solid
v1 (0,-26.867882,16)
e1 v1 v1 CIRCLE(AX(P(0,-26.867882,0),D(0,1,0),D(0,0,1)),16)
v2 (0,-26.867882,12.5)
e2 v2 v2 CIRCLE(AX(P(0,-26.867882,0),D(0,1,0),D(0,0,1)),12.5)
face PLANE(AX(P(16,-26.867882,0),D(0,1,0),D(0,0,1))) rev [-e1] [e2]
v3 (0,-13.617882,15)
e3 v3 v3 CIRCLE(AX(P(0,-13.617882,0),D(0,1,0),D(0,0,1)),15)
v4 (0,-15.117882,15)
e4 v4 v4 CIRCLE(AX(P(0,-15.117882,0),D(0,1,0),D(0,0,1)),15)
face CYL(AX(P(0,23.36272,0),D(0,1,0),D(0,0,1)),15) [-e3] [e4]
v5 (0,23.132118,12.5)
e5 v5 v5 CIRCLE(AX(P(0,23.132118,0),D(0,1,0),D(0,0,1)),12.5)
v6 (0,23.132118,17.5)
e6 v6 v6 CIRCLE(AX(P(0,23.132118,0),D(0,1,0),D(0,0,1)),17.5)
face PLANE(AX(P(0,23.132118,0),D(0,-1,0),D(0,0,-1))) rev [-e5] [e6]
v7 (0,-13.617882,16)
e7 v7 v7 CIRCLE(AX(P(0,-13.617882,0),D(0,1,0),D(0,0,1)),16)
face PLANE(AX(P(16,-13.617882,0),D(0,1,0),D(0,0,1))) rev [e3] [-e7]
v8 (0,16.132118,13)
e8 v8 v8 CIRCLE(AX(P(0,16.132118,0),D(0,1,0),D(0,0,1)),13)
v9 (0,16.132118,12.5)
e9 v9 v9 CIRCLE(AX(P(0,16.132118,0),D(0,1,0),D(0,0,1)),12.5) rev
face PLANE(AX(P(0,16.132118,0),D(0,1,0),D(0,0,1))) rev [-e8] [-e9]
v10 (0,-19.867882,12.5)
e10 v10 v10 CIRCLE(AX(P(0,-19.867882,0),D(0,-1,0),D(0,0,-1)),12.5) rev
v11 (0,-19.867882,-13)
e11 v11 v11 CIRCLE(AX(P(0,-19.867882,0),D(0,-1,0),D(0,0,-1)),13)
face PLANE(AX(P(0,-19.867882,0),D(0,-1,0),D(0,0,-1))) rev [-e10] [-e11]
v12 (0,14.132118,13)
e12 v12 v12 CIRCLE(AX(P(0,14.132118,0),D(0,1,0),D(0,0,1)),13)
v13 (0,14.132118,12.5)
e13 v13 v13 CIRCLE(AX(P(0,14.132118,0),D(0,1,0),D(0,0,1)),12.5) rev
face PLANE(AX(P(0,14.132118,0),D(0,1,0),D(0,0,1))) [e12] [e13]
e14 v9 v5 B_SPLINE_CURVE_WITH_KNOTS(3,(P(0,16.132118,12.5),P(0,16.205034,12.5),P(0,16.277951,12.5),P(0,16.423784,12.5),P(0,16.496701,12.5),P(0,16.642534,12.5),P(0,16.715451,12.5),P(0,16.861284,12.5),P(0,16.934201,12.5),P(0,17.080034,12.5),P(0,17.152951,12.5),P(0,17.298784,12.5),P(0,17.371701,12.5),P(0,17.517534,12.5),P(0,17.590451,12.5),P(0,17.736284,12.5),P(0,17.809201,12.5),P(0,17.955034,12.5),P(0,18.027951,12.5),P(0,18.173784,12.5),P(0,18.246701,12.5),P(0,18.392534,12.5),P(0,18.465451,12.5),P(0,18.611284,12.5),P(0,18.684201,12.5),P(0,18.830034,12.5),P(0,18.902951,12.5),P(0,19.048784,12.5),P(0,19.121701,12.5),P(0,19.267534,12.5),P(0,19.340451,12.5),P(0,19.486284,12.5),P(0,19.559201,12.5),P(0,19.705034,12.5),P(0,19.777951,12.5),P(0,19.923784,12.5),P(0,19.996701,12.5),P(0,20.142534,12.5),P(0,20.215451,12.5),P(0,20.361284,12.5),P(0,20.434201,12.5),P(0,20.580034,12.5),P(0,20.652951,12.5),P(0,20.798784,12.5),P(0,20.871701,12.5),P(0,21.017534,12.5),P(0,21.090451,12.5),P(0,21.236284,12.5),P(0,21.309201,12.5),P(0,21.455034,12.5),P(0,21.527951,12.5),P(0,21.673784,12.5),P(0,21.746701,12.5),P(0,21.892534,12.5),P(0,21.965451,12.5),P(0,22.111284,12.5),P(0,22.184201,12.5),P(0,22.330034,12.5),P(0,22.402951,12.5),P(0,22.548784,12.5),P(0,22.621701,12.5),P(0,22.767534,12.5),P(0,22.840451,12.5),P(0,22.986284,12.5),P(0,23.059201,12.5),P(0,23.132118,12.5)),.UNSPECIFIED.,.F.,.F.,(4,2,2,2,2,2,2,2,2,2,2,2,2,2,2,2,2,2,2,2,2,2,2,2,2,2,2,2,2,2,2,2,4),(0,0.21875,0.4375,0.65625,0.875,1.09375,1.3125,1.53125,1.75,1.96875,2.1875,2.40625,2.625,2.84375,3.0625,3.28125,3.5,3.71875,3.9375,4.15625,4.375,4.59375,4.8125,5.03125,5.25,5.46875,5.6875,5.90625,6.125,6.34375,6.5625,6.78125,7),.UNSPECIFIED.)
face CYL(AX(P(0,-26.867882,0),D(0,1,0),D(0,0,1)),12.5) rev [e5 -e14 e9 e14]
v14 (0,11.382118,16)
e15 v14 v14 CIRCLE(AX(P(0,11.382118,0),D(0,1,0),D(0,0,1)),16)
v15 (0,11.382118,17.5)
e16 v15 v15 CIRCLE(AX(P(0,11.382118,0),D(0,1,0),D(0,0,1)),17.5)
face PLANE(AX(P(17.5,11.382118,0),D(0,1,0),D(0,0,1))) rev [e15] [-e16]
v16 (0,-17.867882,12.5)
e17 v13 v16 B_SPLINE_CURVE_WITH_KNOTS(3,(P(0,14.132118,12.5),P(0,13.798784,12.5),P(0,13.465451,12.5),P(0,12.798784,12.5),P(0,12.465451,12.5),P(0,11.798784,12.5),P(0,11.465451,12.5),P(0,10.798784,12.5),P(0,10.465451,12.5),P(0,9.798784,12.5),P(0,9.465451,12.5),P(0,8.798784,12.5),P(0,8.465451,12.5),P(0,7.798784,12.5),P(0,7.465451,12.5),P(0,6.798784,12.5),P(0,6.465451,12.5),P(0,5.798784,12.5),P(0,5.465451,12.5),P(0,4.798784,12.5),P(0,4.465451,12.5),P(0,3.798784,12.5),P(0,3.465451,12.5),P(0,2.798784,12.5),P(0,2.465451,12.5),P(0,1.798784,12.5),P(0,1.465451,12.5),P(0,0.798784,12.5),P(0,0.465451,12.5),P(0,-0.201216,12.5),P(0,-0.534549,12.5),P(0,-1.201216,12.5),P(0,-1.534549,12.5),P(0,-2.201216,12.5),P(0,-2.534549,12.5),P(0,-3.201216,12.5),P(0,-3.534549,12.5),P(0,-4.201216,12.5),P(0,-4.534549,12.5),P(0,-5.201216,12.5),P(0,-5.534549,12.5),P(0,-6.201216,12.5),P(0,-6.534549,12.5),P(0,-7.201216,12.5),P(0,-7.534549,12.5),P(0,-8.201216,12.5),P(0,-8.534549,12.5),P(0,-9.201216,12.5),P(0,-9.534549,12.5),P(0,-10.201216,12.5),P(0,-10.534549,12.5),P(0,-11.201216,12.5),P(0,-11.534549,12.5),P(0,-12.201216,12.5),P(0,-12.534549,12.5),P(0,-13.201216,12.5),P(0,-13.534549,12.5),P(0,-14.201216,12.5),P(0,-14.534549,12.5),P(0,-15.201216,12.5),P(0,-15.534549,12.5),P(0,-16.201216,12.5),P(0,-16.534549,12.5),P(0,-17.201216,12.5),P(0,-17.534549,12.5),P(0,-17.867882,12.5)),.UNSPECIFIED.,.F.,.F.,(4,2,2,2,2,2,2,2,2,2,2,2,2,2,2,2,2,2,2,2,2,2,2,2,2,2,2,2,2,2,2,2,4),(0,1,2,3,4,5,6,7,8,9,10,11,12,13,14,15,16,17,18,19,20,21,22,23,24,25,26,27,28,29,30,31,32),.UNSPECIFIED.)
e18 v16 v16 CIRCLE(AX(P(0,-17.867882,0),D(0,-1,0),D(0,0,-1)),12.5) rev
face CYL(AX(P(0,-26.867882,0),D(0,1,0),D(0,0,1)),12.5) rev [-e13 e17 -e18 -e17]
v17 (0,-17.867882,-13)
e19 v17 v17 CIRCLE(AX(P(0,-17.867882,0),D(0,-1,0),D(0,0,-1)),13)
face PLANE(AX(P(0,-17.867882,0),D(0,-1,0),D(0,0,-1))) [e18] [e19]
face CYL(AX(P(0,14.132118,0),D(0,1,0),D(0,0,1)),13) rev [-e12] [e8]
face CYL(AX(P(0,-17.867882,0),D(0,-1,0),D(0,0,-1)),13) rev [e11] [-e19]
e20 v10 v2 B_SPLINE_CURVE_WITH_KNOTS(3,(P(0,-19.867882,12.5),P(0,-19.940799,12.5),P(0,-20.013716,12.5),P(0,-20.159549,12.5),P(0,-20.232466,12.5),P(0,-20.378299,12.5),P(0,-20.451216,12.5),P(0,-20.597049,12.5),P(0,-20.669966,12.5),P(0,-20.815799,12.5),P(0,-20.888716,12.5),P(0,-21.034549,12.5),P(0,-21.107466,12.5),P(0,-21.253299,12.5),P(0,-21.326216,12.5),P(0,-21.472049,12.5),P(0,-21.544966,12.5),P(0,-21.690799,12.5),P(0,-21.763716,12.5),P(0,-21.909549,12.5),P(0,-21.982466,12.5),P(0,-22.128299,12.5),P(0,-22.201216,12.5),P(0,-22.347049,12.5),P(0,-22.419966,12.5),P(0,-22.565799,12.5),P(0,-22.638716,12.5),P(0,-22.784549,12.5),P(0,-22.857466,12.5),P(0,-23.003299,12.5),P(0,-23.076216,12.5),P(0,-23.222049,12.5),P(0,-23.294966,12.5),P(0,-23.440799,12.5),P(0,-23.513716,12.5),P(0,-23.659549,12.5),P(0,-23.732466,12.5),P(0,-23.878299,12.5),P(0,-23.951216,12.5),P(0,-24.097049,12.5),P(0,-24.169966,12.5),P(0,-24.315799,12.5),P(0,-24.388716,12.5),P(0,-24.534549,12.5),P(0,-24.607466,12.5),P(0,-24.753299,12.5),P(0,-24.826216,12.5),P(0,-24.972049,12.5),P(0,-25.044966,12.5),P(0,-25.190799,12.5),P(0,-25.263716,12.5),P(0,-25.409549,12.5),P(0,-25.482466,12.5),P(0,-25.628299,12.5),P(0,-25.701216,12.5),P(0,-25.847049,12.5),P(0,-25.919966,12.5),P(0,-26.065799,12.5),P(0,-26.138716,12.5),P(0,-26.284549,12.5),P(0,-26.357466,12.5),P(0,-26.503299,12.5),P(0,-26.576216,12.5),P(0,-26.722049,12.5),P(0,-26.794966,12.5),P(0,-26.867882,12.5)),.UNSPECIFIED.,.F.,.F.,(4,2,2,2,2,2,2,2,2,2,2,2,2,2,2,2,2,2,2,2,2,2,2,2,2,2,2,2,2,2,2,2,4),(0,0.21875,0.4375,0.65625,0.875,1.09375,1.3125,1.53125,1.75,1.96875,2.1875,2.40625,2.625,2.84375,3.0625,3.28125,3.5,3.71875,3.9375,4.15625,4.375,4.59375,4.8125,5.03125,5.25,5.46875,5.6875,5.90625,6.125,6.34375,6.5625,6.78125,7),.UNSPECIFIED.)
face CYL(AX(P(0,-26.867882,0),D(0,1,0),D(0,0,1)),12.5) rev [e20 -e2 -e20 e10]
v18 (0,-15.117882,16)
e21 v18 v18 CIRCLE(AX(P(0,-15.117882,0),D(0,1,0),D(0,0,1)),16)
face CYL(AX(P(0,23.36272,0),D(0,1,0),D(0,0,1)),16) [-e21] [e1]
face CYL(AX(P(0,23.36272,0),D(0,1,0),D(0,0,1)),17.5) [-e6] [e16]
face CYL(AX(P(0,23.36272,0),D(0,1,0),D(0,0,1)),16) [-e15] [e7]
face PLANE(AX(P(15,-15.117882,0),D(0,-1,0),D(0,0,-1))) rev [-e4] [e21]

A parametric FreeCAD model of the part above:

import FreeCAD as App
import Part
import Sketcher
Q = App.Units.Quantity


def add_polygon(sketch, points):
    """Adds a closed chain of lines whose ends are joined by coincident constraints."""
    first, n = sketch.GeometryCount, len(points)
    for a, b in zip(points, points[1:] + points[:1]):
        sketch.addGeometry(Part.LineSegment(App.Vector(*a, 0), App.Vector(*b, 0)), False)
    for i in range(n):
        sketch.addConstraint(Sketcher.Constraint("Coincident", first + i, 2, first + (i + 1) % n, 1))

doc = App.newDocument("Part")
params = doc.addObject("Spreadsheet::Sheet", "Params")
for row, (alias, value) in enumerate([
    ("sketch1_width", "16 mm"),
    ("sketch1_width2", "1 mm"),
    ("sketch1_height", "50 mm"),
    ("sketch1_height2", "25 mm"),
    ("sketch1_width3", "17.5 mm"),
    ("revolution_angle", "360 deg"),
    ("sketch2_diameter", "25 mm"),
    ("sketch3_diameter", "26 mm"),
    ("pocket2_length", "2 mm"),
    ("sketch4_diameter", "26 mm"),
    ("pocket3_length", "2 mm"),
], start=1):
    params.set(f"A{row}", alias)
    params.set(f"B{row}", "=" + value)
    params.setAlias(f"B{row}", alias)

body = doc.addObject("PartDesign::Body", "Body")

# Sketch on XY plane
sketch1 = body.newObject("Sketcher::SketchObject", "Sketch")
sketch1.AttachmentSupport = (doc.getObject("XY_Plane"), [""])
sketch1.MapMode = "FlatFace"
add_polygon(sketch1, [(17.5, 23.1), (0, 23.1), (0, -26.9), (16, -26.9), (16, -15.1), (15, -15.1), (15, -13.6), (16, -13.6), (16, 11.4), (17.5, 11.4)])  # lines 0-9
sketch1.addConstraint([
    Sketcher.Constraint("Horizontal", 0),
    Sketcher.Constraint("Vertical", 1),
    Sketcher.Constraint("Horizontal", 2),
    Sketcher.Constraint("Vertical", 3),
    Sketcher.Constraint("Horizontal", 4),
    Sketcher.Constraint("Vertical", 5),
    Sketcher.Constraint("Horizontal", 6),
    Sketcher.Constraint("Vertical", 7),
    Sketcher.Constraint("Horizontal", 8),
    Sketcher.Constraint("Vertical", 9),
    Sketcher.Constraint("PointOnObject", 0, 2, -2),
    Sketcher.Constraint("Vertical", 3, 2, 6, 2),
    Sketcher.Constraint("Equal", 8, 5),
    Sketcher.Constraint("Equal", 3, 9),
    Sketcher.Constraint("DistanceX", 2, 1, 2, 2, Q("16 mm")),
    Sketcher.Constraint("DistanceX", 4, 2, 4, 1, Q("1 mm")),
    Sketcher.Constraint("DistanceY", 1, 2, 1, 1, Q("50 mm")),
    Sketcher.Constraint("DistanceY", 7, 1, 7, 2, Q("25 mm")),
    Sketcher.Constraint("DistanceX", 0, 2, 0, 1, Q("17.5 mm")),
    Sketcher.Constraint("DistanceY", -1, 1, 0, 2, Q("23.132118 mm")),
])
sketch1.setExpression("Constraints[24]", "Params.sketch1_width")
sketch1.setExpression("Constraints[25]", "Params.sketch1_width2")
sketch1.setExpression("Constraints[26]", "Params.sketch1_height")
sketch1.setExpression("Constraints[27]", "Params.sketch1_height2")
sketch1.setExpression("Constraints[28]", "Params.sketch1_width3")
revolution = body.newObject("PartDesign::Revolution", "Revolution")
revolution.Profile = sketch1
revolution.ReferenceAxis = (sketch1, ["V_Axis"])
revolution.setExpression("Angle", "Params.revolution_angle")

# Sketch on XZ plane
sketch2 = body.newObject("Sketcher::SketchObject", "Sketch001")
sketch2.AttachmentSupport = (doc.getObject("XZ_Plane"), [""])
sketch2.MapMode = "FlatFace"
sketch2.AttachmentOffset = App.Placement(App.Vector(0, 0, -23.132118), App.Rotation())
sketch2.addGeometry(Part.Circle(App.Vector(0, 0, 0), App.Vector(0, 0, 1), 12), False)
sketch2.addConstraint([
    Sketcher.Constraint("Coincident", 0, 3, -1, 1),
    Sketcher.Constraint("Diameter", 0, Q("25 mm")),
])
sketch2.setExpression("Constraints[1]", "Params.sketch2_diameter")
pocket1 = body.newObject("PartDesign::Pocket", "Pocket")
pocket1.Profile = sketch2
pocket1.Type = "ThroughAll"
pocket1.Reversed = True

# Sketch on XZ plane
sketch3 = body.newObject("Sketcher::SketchObject", "Sketch002")
sketch3.AttachmentSupport = (doc.getObject("XZ_Plane"), [""])
sketch3.MapMode = "FlatFace"
sketch3.AttachmentOffset = App.Placement(App.Vector(0, 0, -16.132118), App.Rotation())
sketch3.addGeometry(Part.Circle(App.Vector(0, 0, 0), App.Vector(0, 0, 1), 13), False)
sketch3.addConstraint([
    Sketcher.Constraint("Coincident", 0, 3, -1, 1),
    Sketcher.Constraint("Diameter", 0, Q("26 mm")),
])
sketch3.setExpression("Constraints[1]", "Params.sketch3_diameter")
pocket2 = body.newObject("PartDesign::Pocket", "Pocket001")
pocket2.Profile = sketch3
pocket2.setExpression("Length", "Params.pocket2_length")
pocket2.Reversed = True

# Sketch on XZ plane
sketch4 = body.newObject("Sketcher::SketchObject", "Sketch003")
sketch4.AttachmentSupport = (doc.getObject("XZ_Plane"), [""])
sketch4.MapMode = "FlatFace"
sketch4.AttachmentOffset = App.Placement(App.Vector(0, 0, 17.867882), App.Rotation())
sketch4.addGeometry(Part.Circle(App.Vector(0, 0, 0), App.Vector(0, 0, 1), 13), False)
sketch4.addConstraint([
    Sketcher.Constraint("Coincident", 0, 3, -1, 1),
    Sketcher.Constraint("Diameter", 0, Q("26 mm")),
])
sketch4.setExpression("Constraints[1]", "Params.sketch4_diameter")
pocket3 = body.newObject("PartDesign::Pocket", "Pocket002")
pocket3.Profile = sketch4
pocket3.setExpression("Length", "Params.pocket3_length")
pocket3.Reversed = True

doc.recompute()
